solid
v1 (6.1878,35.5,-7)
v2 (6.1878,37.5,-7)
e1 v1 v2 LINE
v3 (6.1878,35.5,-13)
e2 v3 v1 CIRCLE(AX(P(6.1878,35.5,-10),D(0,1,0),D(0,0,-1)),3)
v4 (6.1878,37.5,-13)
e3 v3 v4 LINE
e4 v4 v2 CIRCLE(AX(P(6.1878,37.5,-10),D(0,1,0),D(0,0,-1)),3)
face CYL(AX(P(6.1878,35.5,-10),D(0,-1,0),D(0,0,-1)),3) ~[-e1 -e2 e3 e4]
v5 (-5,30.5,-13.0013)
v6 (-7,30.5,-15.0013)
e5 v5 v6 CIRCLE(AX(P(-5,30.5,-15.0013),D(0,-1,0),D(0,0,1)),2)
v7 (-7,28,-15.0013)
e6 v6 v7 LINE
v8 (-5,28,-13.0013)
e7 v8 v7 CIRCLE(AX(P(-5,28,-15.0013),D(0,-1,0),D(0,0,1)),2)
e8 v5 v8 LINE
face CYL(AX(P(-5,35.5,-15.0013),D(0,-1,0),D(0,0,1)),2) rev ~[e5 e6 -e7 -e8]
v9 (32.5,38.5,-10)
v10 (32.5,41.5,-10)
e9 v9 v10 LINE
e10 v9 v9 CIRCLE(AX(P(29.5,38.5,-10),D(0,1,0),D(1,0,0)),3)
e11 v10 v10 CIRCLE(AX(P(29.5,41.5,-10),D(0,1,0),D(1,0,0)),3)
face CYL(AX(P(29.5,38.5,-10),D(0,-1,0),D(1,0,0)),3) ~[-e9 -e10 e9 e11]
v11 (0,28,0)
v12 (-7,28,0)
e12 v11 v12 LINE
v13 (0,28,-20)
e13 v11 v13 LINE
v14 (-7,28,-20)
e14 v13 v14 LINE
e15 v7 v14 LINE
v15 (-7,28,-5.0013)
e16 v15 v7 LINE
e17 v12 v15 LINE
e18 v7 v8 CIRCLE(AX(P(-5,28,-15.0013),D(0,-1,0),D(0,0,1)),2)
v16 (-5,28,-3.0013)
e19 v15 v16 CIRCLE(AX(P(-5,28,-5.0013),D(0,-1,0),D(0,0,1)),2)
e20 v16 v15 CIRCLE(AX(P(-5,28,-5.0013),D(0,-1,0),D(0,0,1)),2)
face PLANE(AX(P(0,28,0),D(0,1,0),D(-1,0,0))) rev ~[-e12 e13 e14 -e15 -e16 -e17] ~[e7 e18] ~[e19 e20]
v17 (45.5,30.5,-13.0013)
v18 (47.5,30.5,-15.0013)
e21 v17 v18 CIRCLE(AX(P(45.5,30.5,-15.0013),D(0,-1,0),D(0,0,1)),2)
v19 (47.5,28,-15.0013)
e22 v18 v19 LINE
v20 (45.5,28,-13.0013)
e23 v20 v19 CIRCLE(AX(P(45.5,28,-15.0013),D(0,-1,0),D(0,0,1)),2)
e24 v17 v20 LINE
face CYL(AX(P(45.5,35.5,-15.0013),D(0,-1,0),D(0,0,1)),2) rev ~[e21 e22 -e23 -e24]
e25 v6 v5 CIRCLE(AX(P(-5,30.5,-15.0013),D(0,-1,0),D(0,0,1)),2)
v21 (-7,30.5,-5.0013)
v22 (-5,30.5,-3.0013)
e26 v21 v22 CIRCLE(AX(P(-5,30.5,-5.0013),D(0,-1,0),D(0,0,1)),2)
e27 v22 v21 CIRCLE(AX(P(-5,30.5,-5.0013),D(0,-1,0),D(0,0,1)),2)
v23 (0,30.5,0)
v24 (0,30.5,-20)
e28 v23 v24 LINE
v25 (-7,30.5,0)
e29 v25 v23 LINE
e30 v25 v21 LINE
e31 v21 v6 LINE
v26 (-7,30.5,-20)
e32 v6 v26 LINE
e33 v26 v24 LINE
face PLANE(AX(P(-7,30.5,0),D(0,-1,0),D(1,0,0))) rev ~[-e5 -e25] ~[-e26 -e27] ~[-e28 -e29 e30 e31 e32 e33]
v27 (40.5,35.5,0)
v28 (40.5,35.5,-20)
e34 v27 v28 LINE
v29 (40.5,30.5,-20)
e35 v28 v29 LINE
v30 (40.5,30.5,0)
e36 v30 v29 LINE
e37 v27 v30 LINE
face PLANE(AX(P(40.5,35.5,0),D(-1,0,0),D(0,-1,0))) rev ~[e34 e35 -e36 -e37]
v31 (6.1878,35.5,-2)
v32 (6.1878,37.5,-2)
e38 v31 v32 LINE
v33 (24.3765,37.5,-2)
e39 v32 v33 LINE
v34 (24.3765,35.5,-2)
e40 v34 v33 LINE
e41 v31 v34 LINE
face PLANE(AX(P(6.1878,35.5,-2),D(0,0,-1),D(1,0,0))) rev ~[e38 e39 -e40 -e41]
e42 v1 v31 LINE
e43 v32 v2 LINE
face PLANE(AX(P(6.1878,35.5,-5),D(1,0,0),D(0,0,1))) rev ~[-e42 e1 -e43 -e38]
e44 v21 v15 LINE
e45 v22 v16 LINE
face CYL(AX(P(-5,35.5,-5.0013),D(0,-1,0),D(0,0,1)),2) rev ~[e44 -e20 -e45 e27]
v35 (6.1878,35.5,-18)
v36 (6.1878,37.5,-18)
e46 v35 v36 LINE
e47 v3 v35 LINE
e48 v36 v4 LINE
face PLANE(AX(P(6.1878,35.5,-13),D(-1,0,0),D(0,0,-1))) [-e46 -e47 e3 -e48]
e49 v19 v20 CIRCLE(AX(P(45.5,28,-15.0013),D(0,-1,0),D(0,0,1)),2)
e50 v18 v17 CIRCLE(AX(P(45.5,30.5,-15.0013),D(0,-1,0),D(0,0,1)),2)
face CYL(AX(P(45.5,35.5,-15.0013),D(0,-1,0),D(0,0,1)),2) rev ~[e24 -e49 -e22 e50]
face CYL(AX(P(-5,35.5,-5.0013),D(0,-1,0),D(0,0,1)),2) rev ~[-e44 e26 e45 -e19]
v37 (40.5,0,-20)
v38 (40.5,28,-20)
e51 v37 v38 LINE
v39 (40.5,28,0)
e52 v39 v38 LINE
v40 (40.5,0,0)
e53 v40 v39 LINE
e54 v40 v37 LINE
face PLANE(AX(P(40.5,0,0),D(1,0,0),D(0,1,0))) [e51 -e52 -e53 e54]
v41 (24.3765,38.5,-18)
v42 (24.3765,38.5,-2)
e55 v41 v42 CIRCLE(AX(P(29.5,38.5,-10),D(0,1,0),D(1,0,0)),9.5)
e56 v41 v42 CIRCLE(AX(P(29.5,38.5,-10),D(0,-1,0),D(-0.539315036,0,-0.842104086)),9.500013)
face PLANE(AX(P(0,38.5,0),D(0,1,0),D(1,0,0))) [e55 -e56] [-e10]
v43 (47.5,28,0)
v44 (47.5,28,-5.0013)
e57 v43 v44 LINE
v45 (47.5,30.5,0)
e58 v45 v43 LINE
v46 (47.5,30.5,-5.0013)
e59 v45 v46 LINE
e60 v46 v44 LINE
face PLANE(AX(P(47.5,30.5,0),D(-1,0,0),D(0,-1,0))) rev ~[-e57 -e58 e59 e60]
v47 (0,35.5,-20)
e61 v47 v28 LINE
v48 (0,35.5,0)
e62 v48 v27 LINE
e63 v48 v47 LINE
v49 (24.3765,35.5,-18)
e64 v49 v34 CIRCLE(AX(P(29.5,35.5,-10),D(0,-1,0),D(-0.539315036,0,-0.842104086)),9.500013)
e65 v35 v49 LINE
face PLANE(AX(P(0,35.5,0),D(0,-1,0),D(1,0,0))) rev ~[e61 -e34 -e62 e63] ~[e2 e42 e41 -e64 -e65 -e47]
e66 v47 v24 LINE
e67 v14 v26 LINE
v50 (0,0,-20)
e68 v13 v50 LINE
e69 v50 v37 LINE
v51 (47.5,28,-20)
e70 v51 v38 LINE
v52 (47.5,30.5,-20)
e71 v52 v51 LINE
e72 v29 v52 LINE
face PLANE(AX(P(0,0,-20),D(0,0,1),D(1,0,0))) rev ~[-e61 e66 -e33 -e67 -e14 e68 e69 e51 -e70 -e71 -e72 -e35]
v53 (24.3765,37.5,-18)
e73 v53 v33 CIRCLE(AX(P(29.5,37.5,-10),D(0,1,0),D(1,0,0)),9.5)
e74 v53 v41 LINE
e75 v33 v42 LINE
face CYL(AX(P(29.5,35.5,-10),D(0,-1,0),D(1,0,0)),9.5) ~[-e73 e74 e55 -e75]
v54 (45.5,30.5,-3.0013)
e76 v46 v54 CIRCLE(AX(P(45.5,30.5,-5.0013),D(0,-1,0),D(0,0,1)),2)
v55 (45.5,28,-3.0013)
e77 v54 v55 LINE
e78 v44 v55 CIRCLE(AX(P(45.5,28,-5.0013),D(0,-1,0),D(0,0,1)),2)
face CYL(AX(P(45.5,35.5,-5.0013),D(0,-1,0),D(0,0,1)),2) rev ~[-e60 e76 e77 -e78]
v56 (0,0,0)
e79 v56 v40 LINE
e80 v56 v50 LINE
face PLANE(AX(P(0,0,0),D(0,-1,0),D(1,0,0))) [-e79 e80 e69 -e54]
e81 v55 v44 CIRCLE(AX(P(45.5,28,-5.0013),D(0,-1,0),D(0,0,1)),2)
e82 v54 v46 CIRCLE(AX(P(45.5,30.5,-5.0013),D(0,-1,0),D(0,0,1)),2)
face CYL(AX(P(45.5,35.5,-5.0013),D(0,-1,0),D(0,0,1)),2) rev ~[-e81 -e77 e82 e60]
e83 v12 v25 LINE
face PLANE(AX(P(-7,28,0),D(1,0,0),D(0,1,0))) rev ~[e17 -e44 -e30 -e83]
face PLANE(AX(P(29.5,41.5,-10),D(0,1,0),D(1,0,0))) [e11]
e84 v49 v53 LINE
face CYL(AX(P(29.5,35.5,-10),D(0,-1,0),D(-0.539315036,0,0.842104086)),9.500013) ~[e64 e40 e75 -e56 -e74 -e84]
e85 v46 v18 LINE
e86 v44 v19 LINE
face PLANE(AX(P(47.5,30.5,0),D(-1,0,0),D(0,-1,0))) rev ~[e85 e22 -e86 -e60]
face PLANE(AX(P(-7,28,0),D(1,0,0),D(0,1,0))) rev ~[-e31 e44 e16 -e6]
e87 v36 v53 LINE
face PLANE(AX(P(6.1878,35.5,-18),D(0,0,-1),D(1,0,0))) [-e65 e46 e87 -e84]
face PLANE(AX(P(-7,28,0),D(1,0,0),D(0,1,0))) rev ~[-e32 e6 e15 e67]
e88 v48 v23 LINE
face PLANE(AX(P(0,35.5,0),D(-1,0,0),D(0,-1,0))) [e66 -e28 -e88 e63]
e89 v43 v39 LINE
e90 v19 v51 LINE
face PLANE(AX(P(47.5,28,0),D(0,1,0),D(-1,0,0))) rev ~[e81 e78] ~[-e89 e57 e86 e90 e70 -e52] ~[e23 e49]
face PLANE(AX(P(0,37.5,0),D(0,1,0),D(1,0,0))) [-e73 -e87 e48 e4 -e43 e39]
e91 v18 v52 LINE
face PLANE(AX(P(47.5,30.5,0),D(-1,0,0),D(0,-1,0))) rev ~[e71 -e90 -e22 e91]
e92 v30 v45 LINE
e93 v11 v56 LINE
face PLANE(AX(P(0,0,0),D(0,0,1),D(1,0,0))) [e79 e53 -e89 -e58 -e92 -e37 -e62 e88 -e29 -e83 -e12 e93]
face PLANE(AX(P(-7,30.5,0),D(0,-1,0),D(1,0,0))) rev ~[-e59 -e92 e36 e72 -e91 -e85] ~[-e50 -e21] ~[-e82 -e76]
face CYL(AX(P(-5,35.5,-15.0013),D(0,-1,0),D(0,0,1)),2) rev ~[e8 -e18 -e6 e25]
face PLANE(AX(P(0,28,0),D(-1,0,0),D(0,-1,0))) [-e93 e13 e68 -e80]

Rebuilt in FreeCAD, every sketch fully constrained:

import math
import FreeCAD as App
import Part
import Sketcher


def add_polygon(sketch, points):
    """Adds a closed chain of lines whose ends are joined by coincident constraints."""
    first, n = sketch.GeometryCount, len(points)
    for a, b in zip(points, points[1:] + points[:1]):
        sketch.addGeometry(Part.LineSegment(App.Vector(*a, 0), App.Vector(*b, 0)), False)
    for i in range(n):
        sketch.addConstraint(Sketcher.Constraint("Coincident", first + i, 2, first + (i + 1) % n, 1))

doc = App.newDocument("Part")
params = doc.addObject("Spreadsheet::Sheet", "Params")
for row, (alias, value) in enumerate([
    ("sketch1_height", "28 mm"),
    ("sketch1_width", "40.5 mm"),
    ("pad1_length", "20 mm"),
    ("sketch2_width", "54.5 mm"),
    ("sketch2_height", "2.5 mm"),
    ("pad2_length", "20 mm"),
    ("sketch3_height", "5 mm"),
    ("sketch3_width", "40.5 mm"),
    ("pad3_length", "20 mm"),
    ("sketch4_diameter", "4 mm"),
    ("hole_diameter", "4 mm"),
    ("sketch5_diameter", "19 mm"),
    ("pad4_length", "3 mm"),
    ("sketch6_radius", "3 mm"),
    ("sketch6_radius2", "9.5 mm"),
    ("sketch6_height", "5 mm"),
    ("pad5_length", "2 mm"),
    ("sketch7_diameter", "6 mm"),
    ("pad6_length", "3 mm"),
], start=1):
    params.set(f"A{row}", alias)
    params.set(f"B{row}", "=" + value)
    params.setAlias(f"B{row}", alias)

body = doc.addObject("PartDesign::Body", "Body")

sketch1 = doc.addObject("Sketcher::SketchObject", "Sketch")
body.addObject(sketch1)
sketch1.AttachmentSupport = (doc.XY_Plane, [""])
sketch1.MapMode = "FlatFace"
add_polygon(sketch1, [(0, 28), (0, 0), (40, 0), (40, 28)])
sketch1.addConstraint([
    Sketcher.Constraint("Vertical", 0),
    Sketcher.Constraint("Horizontal", 1),
    Sketcher.Constraint("Vertical", 2),
    Sketcher.Constraint("Horizontal", 3),
    Sketcher.Constraint("Coincident", 0, 2, -1, 1),
    Sketcher.Constraint("DistanceY", 0, 2, 0, 1, 28.0),
    Sketcher.Constraint("DistanceX", 1, 1, 1, 2, 40.5),
])
sketch1.setExpression("Constraints[9]", "Params.sketch1_height")
sketch1.setExpression("Constraints[10]", "Params.sketch1_width")
pad1 = doc.addObject("PartDesign::Pad", "Pad")
body.addObject(pad1)
pad1.Profile = sketch1
pad1.setExpression("Length", "Params.pad1_length")
pad1.Reversed = True

sketch2 = doc.addObject("Sketcher::SketchObject", "Sketch001")
body.addObject(sketch2)
sketch2.AttachmentSupport = (doc.XY_Plane, [""])
sketch2.MapMode = "FlatFace"
add_polygon(sketch2, [(-7, 28), (47.5, 28), (47.5, 30.5), (-7, 30.5)])
sketch2.addConstraint([
    Sketcher.Constraint("Horizontal", 0),
    Sketcher.Constraint("Vertical", 1),
    Sketcher.Constraint("Horizontal", 2),
    Sketcher.Constraint("Vertical", 3),
    Sketcher.Constraint("DistanceX", 0, 1, 0, 2, 54.5),
    Sketcher.Constraint("DistanceY", 1, 1, 1, 2, 2.5),
    Sketcher.Constraint("DistanceY", -1, 1, 0, 2, 28.0),
    Sketcher.Constraint("DistanceX", 2, 2, -1, 1, 7.0),
])
sketch2.setExpression("Constraints[8]", "Params.sketch2_width")
sketch2.setExpression("Constraints[9]", "Params.sketch2_height")
pad2 = doc.addObject("PartDesign::Pad", "Pad001")
body.addObject(pad2)
pad2.Profile = sketch2
pad2.setExpression("Length", "Params.pad2_length")
pad2.Reversed = True

sketch3 = doc.addObject("Sketcher::SketchObject", "Sketch002")
body.addObject(sketch3)
sketch3.AttachmentSupport = (doc.XY_Plane, [""])
sketch3.MapMode = "FlatFace"
add_polygon(sketch3, [(40, 36), (0, 36), (0, 30), (40, 30)])
sketch3.addConstraint([
    Sketcher.Constraint("Horizontal", 0),
    Sketcher.Constraint("Vertical", 1),
    Sketcher.Constraint("Horizontal", 2),
    Sketcher.Constraint("Vertical", 3),
    Sketcher.Constraint("PointOnObject", 0, 2, -2),
    Sketcher.Constraint("DistanceY", 1, 2, 1, 1, 5.0),
    Sketcher.Constraint("DistanceX", 0, 2, 0, 1, 40.5),
    Sketcher.Constraint("DistanceY", -1, 1, 0, 2, 35.5),
])
sketch3.setExpression("Constraints[9]", "Params.sketch3_height")
sketch3.setExpression("Constraints[10]", "Params.sketch3_width")
pad3 = doc.addObject("PartDesign::Pad", "Pad002")
body.addObject(pad3)
pad3.Profile = sketch3
pad3.setExpression("Length", "Params.pad3_length")
pad3.Reversed = True

sketch4 = doc.addObject("Sketcher::SketchObject", "Sketch003")
body.addObject(sketch4)
sketch4.AttachmentSupport = (doc.XZ_Plane, [""])
sketch4.MapMode = "FlatFace"
sketch4.AttachmentOffset = App.Placement(App.Vector(0, 0, -35.5), App.Rotation())
sketch4.addGeometry([
    Part.Circle(App.Vector(-5, -15, 0), App.Vector(0, 0, 1), 2),
    Part.Circle(App.Vector(-5, -5, 0), App.Vector(0, 0, 1), 2),
    Part.Circle(App.Vector(45.5, -5, 0), App.Vector(0, 0, 1), 2),
    Part.Circle(App.Vector(45.5, -15, 0), App.Vector(0, 0, 1), 2),
], False)
sketch4.addConstraint([
    Sketcher.Constraint("Equal", 0, 1),
    Sketcher.Constraint("Equal", 1, 2),
    Sketcher.Constraint("Equal", 2, 3),
    Sketcher.Constraint("Horizontal", 1, 3, 2, 3),
    Sketcher.Constraint("Horizontal", 0, 3, 3, 3),
    Sketcher.Constraint("Vertical", 0, 3, 1, 3),
    Sketcher.Constraint("Vertical", 2, 3, 3, 3),
    Sketcher.Constraint("Diameter", 0, 4.0),
    Sketcher.Constraint("DistanceX", 0, 3, -1, 1, 5.0),
    Sketcher.Constraint("DistanceY", 0, 3, 1, 3, 10.0),
    Sketcher.Constraint("DistanceX", -1, 1, 2, 3, 45.5),
    Sketcher.Constraint("DistanceY", 0, 3, -1, 1, 15.0013),
])
sketch4.setExpression("Constraints[7]", "Params.sketch4_diameter")
doc.recompute()
hole = doc.addObject("PartDesign::Hole", "Hole")
body.addObject(hole)
hole.Profile = sketch4
hole.ThreadType = "None"
hole.setExpression("Diameter", "Params.hole_diameter")
hole.DepthType = "ThroughAll"
hole.Reversed = True

sketch5 = doc.addObject("Sketcher::SketchObject", "Sketch004")
body.addObject(sketch5)
sketch5.AttachmentSupport = (doc.XZ_Plane, [""])
sketch5.MapMode = "FlatFace"
sketch5.AttachmentOffset = App.Placement(App.Vector(0, 0, -35.5), App.Rotation())
sketch5.addGeometry(Part.Circle(App.Vector(30, -10, 0), App.Vector(0, 0, 1), 10), False)
sketch5.addConstraint([
    Sketcher.Constraint("Diameter", 0, 19.0),
    Sketcher.Constraint("DistanceY", 0, 3, -1, 1, 10.0),
    Sketcher.Constraint("DistanceX", -1, 1, 0, 3, 29.5),
])
sketch5.setExpression("Constraints[0]", "Params.sketch5_diameter")
pad4 = doc.addObject("PartDesign::Pad", "Pad003")
body.addObject(pad4)
pad4.Profile = sketch5
pad4.setExpression("Length", "Params.pad4_length")
pad4.Reversed = True

sketch6 = doc.addObject("Sketcher::SketchObject", "Sketch005")
body.addObject(sketch6)
sketch6.AttachmentSupport = (doc.XZ_Plane, [""])
sketch6.MapMode = "FlatFace"
sketch6.AttachmentOffset = App.Placement(App.Vector(0, 0, -35.5), App.Rotation())
sketch6.addGeometry([
    Part.LineSegment(App.Vector(6.2, -2, 0), App.Vector(24.4, -2, 0)),
    Part.ArcOfCircle(Part.Circle(App.Vector(29.5, -10, 0), App.Vector(0, 0, 1), 9.5), math.radians(123), math.radians(237)),
    Part.LineSegment(App.Vector(24.4, -18, 0), App.Vector(6.2, -18, 0)),
    Part.LineSegment(App.Vector(6.2, -18, 0), App.Vector(6.2, -13, 0)),
    Part.ArcOfCircle(Part.Circle(App.Vector(6.2, -10, 0), App.Vector(0, 0, 1), 3), math.radians(90), math.radians(270)),
    Part.LineSegment(App.Vector(6.2, -7, 0), App.Vector(6.2, -2, 0)),
], False)
sketch6.addConstraint([
    Sketcher.Constraint("Coincident", 0, 2, 1, 1),
    Sketcher.Constraint("Coincident", 1, 2, 2, 1),
    Sketcher.Constraint("Coincident", 2, 2, 3, 1),
    Sketcher.Constraint("Coincident", 3, 2, 4, 2),
    Sketcher.Constraint("Coincident", 4, 1, 5, 1),
    Sketcher.Constraint("Coincident", 5, 2, 0, 1),
    Sketcher.Constraint("Horizontal", 0),
    Sketcher.Constraint("Horizontal", 2),
    Sketcher.Constraint("Vertical", 3),
    Sketcher.Constraint("Vertical", 5),
    Sketcher.Constraint("Horizontal", 1, 3, 4, 3),
    Sketcher.Constraint("Vertical", 0, 2, 1, 2),
    Sketcher.Constraint("Vertical", 4, 3, 2, 2),
    Sketcher.Constraint("Vertical", 3, 2, 4, 1),
    Sketcher.Constraint("Radius", 4, 3.0),
    Sketcher.Constraint("Radius", 1, 9.5),
    Sketcher.Constraint("DistanceY", 3, 1, 3, 2, 5.0),
    Sketcher.Constraint("DistanceY", 1, 3, -1, 1, 10.0),
    Sketcher.Constraint("DistanceX", -1, 1, 1, 3, 29.5),
    Sketcher.Constraint("DistanceX", 0, 1, 0, 2, 18.1887),
])
sketch6.setExpression("Constraints[14]", "Params.sketch6_radius")
sketch6.setExpression("Constraints[15]", "Params.sketch6_radius2")
sketch6.setExpression("Constraints[16]", "Params.sketch6_height")
pad5 = doc.addObject("PartDesign::Pad", "Pad004")
body.addObject(pad5)
pad5.Profile = sketch6
pad5.setExpression("Length", "Params.pad5_length")
pad5.Reversed = True

sketch7 = doc.addObject("Sketcher::SketchObject", "Sketch006")
body.addObject(sketch7)
sketch7.AttachmentSupport = (doc.XZ_Plane, [""])
sketch7.MapMode = "FlatFace"
sketch7.AttachmentOffset = App.Placement(App.Vector(0, 0, -38.5), App.Rotation())
sketch7.addGeometry(Part.Circle(App.Vector(29.5, -10, 0), App.Vector(0, 0, 1), 3), False)
sketch7.addConstraint([
    Sketcher.Constraint("Diameter", 0, 6.0),
    Sketcher.Constraint("DistanceY", 0, 3, -1, 1, 10.0),
    Sketcher.Constraint("DistanceX", -1, 1, 0, 3, 29.5),
])
sketch7.setExpression("Constraints[0]", "Params.sketch7_diameter")
pad6 = doc.addObject("PartDesign::Pad", "Pad005")
body.addObject(pad6)
pad6.Profile = sketch7
pad6.setExpression("Length", "Params.pad6_length")
pad6.Reversed = True

doc.recompute()
